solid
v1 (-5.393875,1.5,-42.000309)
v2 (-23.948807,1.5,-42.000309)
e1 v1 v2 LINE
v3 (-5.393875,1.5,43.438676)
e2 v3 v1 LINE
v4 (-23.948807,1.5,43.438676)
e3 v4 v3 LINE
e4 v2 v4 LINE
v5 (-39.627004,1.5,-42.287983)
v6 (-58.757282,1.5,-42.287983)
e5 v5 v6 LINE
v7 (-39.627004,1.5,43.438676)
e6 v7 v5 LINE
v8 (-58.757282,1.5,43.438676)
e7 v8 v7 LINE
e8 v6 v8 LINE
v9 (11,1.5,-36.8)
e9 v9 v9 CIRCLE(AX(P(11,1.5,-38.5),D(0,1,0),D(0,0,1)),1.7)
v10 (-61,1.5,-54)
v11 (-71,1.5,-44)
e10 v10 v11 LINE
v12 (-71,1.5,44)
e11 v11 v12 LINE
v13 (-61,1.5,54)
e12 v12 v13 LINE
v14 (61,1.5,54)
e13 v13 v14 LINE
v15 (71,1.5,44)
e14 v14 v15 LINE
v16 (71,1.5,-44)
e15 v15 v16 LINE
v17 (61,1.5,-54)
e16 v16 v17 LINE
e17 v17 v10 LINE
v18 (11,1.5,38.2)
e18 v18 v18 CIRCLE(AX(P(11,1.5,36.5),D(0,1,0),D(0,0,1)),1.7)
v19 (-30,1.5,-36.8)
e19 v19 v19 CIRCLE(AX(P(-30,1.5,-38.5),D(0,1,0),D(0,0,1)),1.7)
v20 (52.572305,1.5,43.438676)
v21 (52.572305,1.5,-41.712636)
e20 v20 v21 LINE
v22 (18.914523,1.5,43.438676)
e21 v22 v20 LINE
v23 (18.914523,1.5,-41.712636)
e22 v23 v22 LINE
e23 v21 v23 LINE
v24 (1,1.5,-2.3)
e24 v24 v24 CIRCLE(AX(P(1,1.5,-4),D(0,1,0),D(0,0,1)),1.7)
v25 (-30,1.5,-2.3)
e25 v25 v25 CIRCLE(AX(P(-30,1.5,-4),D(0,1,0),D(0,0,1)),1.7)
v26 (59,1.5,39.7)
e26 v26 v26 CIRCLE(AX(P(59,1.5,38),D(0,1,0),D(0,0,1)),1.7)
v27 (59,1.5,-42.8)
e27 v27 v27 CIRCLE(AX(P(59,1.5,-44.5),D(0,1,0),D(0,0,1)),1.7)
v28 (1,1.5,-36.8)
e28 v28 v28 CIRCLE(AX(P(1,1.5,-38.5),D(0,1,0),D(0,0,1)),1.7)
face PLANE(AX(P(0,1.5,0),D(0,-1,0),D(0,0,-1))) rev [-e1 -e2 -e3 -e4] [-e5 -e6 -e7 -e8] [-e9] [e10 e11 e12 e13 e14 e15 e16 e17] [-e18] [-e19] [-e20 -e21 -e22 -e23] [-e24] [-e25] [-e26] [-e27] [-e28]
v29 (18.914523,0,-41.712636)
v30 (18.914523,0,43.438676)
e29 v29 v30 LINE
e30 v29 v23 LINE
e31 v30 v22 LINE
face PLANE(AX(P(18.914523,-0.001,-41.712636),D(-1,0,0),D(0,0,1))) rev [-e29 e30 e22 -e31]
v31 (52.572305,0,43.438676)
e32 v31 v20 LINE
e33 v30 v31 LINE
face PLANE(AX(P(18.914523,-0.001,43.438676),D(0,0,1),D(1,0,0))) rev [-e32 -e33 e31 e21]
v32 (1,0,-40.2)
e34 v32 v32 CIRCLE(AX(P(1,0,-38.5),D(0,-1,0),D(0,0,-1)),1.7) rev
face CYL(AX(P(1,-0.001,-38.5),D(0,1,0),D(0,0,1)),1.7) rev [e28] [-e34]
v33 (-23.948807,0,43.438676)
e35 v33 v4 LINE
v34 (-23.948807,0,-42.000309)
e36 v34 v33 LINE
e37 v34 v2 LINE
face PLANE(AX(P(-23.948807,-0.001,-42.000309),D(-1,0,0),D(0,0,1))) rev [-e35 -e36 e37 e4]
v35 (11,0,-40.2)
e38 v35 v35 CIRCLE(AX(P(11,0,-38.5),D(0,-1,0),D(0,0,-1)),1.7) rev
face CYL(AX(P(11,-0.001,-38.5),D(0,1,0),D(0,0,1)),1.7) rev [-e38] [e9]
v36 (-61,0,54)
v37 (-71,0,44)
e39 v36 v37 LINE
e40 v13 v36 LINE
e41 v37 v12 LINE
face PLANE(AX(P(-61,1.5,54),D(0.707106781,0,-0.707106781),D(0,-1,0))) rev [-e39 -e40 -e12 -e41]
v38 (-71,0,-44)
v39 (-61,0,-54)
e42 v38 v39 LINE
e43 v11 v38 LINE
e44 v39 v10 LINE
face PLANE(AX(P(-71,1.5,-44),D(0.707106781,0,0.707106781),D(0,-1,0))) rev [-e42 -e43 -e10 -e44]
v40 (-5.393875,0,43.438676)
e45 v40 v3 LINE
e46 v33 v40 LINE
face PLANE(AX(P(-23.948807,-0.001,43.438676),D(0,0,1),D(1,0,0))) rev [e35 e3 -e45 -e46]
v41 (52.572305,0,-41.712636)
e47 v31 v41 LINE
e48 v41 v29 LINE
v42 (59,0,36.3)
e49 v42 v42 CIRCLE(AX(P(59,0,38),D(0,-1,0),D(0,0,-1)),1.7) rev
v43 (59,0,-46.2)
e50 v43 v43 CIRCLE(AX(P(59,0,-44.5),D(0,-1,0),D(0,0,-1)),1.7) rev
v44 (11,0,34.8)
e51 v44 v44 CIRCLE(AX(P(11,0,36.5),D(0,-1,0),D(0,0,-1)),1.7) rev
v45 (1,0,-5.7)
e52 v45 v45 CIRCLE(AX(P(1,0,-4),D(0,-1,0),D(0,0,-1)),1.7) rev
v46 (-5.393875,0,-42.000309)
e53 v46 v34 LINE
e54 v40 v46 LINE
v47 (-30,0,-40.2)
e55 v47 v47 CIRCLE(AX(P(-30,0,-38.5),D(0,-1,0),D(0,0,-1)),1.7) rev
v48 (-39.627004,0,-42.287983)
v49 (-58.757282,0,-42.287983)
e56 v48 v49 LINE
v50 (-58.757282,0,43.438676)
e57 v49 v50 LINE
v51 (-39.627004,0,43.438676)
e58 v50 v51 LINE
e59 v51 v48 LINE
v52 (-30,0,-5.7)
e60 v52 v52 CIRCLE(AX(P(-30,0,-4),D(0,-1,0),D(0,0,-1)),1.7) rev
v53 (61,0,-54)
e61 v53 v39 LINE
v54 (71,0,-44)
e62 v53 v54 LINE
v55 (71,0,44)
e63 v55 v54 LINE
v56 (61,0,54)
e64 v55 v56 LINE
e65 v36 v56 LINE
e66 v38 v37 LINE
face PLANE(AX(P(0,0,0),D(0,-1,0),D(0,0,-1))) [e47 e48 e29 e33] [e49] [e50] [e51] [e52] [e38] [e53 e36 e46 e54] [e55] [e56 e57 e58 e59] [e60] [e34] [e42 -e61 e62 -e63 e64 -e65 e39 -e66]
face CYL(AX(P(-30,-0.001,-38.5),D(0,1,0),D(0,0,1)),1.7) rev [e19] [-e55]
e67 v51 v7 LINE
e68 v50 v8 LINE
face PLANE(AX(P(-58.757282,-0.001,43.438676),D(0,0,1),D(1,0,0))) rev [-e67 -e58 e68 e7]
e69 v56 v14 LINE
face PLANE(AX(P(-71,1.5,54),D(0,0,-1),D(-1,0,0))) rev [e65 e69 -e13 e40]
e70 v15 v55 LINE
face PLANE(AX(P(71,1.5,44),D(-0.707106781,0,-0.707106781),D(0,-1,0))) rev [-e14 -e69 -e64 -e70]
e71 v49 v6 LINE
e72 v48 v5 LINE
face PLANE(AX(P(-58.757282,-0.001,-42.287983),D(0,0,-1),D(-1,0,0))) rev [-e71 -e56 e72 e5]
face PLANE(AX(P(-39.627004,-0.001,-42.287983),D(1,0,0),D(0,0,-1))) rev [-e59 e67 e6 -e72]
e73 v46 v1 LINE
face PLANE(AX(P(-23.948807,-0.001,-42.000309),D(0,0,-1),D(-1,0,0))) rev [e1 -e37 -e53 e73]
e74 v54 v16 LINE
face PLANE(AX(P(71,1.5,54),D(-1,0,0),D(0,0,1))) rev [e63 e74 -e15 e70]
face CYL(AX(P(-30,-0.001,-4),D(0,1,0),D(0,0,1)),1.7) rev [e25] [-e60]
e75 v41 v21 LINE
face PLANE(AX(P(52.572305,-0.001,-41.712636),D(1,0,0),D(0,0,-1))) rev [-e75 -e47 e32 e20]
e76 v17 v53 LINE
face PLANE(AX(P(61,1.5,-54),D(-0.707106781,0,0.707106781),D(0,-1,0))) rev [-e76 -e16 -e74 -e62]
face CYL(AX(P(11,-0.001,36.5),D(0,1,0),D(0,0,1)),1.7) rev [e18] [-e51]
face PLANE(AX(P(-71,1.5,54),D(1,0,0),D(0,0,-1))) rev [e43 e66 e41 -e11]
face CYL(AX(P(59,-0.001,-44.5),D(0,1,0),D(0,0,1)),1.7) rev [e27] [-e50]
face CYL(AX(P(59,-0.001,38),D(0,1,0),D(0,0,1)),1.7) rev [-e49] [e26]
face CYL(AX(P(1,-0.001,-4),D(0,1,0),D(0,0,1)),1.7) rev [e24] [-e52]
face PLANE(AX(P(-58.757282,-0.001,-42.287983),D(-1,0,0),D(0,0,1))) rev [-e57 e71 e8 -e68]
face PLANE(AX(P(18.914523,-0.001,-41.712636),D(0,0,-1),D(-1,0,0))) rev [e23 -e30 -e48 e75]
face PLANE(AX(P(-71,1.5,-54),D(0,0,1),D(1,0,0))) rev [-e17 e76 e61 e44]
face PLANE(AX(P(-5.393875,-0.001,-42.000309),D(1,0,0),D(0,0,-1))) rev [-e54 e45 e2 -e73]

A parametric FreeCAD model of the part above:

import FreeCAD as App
import Part
import Sketcher

V = App.Vector
Q = App.Units.Quantity


def edges_at(feature, points):
    """Names of the edges that pass closest to the given points."""
    edges = feature.Shape.Edges
    near = lambda p: min(range(len(edges)), key=lambda i: edges[i].distToShape(Part.Vertex(*p))[0])
    return sorted({f"Edge{near(p) + 1}" for p in points})


def add_polygon(sketch, points):
    """Adds a closed chain of lines whose ends are joined by coincident constraints."""
    first, n = sketch.GeometryCount, len(points)
    for a, b in zip(points, points[1:] + points[:1]):
        sketch.addGeometry(Part.LineSegment(App.Vector(*a, 0), App.Vector(*b, 0)), False)
    for i in range(n):
        sketch.addConstraint(Sketcher.Constraint("Coincident", first + i, 2, first + (i + 1) % n, 1))

doc = App.newDocument("Part")
body = doc.addObject("PartDesign::Body", "Body")

# Sketch on XZ plane
sketch1 = body.newObject("Sketcher::SketchObject", "Sketch")
sketch1.AttachmentSupport = (doc.getObject("XZ_Plane"), [""])
sketch1.MapMode = "FlatFace"
add_polygon(sketch1, [(-71, -54), (-71, 54), (71, 54), (71, -54)])  # lines 0-3
sketch1.addConstraint([
    Sketcher.Constraint("Vertical", 0),
    Sketcher.Constraint("Horizontal", 1),
    Sketcher.Constraint("Vertical", 2),
    Sketcher.Constraint("Horizontal", 3),
    Sketcher.Constraint("Symmetric", 0, 2, 2, 2, -1, 1),
    Sketcher.Constraint("DistanceX", 1, 1, 1, 2, Q("142 mm")),
    Sketcher.Constraint("DistanceY", 0, 1, 0, 2, Q("108 mm")),
])
pad1 = body.newObject("PartDesign::Pad", "Pad")
pad1.Profile = sketch1
pad1.Length = 1.5
pad1.Reversed = True
doc.recompute()

chamfer = body.newObject("PartDesign::Chamfer", "Chamfer")
chamfer.Base = (pad1, edges_at(pad1, [
    (71, 0.75, 54),
    (-71, 0.75, 54),
    (-71, 0.75, -54),
    (71, 0.75, -54),
]))
chamfer.Size = 10

# Sketch on XZ plane
sketch2 = body.newObject("Sketcher::SketchObject", "Sketch001")
sketch2.AttachmentSupport = (doc.getObject("XZ_Plane"), [""])
sketch2.MapMode = "FlatFace"
sketch2.AttachmentOffset = App.Placement(V(0, 0, -1.5), App.Rotation())
sketch2.addGeometry(Part.Circle(V(59, -44.5, 0), V(0, 0, 1), 1.7), False)
sketch2.addConstraint([
    Sketcher.Constraint("Diameter", 0, Q("3.4 mm")),
    Sketcher.Constraint("DistanceX", -1, 1, 0, 3, Q("59 mm")),
    Sketcher.Constraint("DistanceY", 0, 3, -1, 1, Q("44.5 mm")),
])
pocket1 = body.newObject("PartDesign::Pocket", "Pocket")
pocket1.Profile = sketch2
pocket1.Type = "UpToFirst"
pocket1.Reversed = True

# Sketch on XZ plane
sketch3 = body.newObject("Sketcher::SketchObject", "Sketch002")
sketch3.AttachmentSupport = (doc.getObject("XZ_Plane"), [""])
sketch3.MapMode = "FlatFace"
sketch3.AttachmentOffset = App.Placement(V(0, 0, -1.5), App.Rotation())
sketch3.addGeometry(Part.Circle(V(11, -38.5, 0), V(0, 0, 1), 1.7), False)
sketch3.addConstraint([
    Sketcher.Constraint("Diameter", 0, Q("3.4 mm")),
    Sketcher.Constraint("DistanceX", -1, 1, 0, 3, Q("11 mm")),
    Sketcher.Constraint("DistanceY", 0, 3, -1, 1, Q("38.5 mm")),
])
pocket2 = body.newObject("PartDesign::Pocket", "Pocket001")
pocket2.Profile = sketch3
pocket2.Type = "UpToFirst"
pocket2.Reversed = True

# Sketch on XZ plane
sketch4 = body.newObject("Sketcher::SketchObject", "Sketch003")
sketch4.AttachmentSupport = (doc.getObject("XZ_Plane"), [""])
sketch4.MapMode = "FlatFace"
sketch4.AttachmentOffset = App.Placement(V(0, 0, -1.5), App.Rotation())
sketch4.addGeometry(Part.Circle(V(11, 36.5, 0), V(0, 0, 1), 1.7), False)
sketch4.addConstraint([
    Sketcher.Constraint("Diameter", 0, Q("3.4 mm")),
    Sketcher.Constraint("DistanceX", -1, 1, 0, 3, Q("11 mm")),
    Sketcher.Constraint("DistanceY", -1, 1, 0, 3, Q("36.5 mm")),
])
pocket3 = body.newObject("PartDesign::Pocket", "Pocket002")
pocket3.Profile = sketch4
pocket3.Type = "UpToFirst"
pocket3.Reversed = True

# Sketch on XZ plane
sketch5 = body.newObject("Sketcher::SketchObject", "Sketch004")
sketch5.AttachmentSupport = (doc.getObject("XZ_Plane"), [""])
sketch5.MapMode = "FlatFace"
sketch5.AttachmentOffset = App.Placement(V(0, 0, -1.5), App.Rotation())
sketch5.addGeometry(Part.Circle(V(59, 38, 0), V(0, 0, 1), 1.7), False)
sketch5.addConstraint([
    Sketcher.Constraint("Diameter", 0, Q("3.4 mm")),
    Sketcher.Constraint("DistanceX", -1, 1, 0, 3, Q("59 mm")),
    Sketcher.Constraint("DistanceY", -1, 1, 0, 3, Q("38 mm")),
])
pocket4 = body.newObject("PartDesign::Pocket", "Pocket003")
pocket4.Profile = sketch5
pocket4.Type = "UpToFirst"
pocket4.Reversed = True

# Sketch on XZ plane
sketch6 = body.newObject("Sketcher::SketchObject", "Sketch005")
sketch6.AttachmentSupport = (doc.getObject("XZ_Plane"), [""])
sketch6.MapMode = "FlatFace"
sketch6.AttachmentOffset = App.Placement(V(0, 0, -1.5), App.Rotation())
sketch6.addGeometry(Part.Circle(V(-30, -38.5, 0), V(0, 0, 1), 1.7), False)
sketch6.addConstraint([
    Sketcher.Constraint("Diameter", 0, Q("3.4 mm")),
    Sketcher.Constraint("DistanceX", 0, 3, -1, 1, Q("30 mm")),
    Sketcher.Constraint("DistanceY", 0, 3, -1, 1, Q("38.5 mm")),
])
pocket5 = body.newObject("PartDesign::Pocket", "Pocket004")
pocket5.Profile = sketch6
pocket5.Type = "UpToFirst"
pocket5.Reversed = True

# Sketch on XZ plane
sketch7 = body.newObject("Sketcher::SketchObject", "Sketch006")
sketch7.AttachmentSupport = (doc.getObject("XZ_Plane"), [""])
sketch7.MapMode = "FlatFace"
sketch7.AttachmentOffset = App.Placement(V(0, 0, -1.5), App.Rotation())
sketch7.addGeometry(Part.Circle(V(1, -38.5, 0), V(0, 0, 1), 1.7), False)
sketch7.addConstraint([
    Sketcher.Constraint("Diameter", 0, Q("3.4 mm")),
    Sketcher.Constraint("DistanceX", -1, 1, 0, 3, Q("1 mm")),
    Sketcher.Constraint("DistanceY", 0, 3, -1, 1, Q("38.5 mm")),
])
pocket6 = body.newObject("PartDesign::Pocket", "Pocket005")
pocket6.Profile = sketch7
pocket6.Type = "UpToFirst"
pocket6.Reversed = True

# Sketch on XZ plane
sketch8 = body.newObject("Sketcher::SketchObject", "Sketch007")
sketch8.AttachmentSupport = (doc.getObject("XZ_Plane"), [""])
sketch8.MapMode = "FlatFace"
sketch8.AttachmentOffset = App.Placement(V(0, 0, -1.5), App.Rotation())
sketch8.addGeometry(Part.Circle(V(1, -4, 0), V(0, 0, 1), 1.7), False)
sketch8.addConstraint([
    Sketcher.Constraint("Diameter", 0, Q("3.4 mm")),
    Sketcher.Constraint("DistanceX", -1, 1, 0, 3, Q("1 mm")),
    Sketcher.Constraint("DistanceY", 0, 3, -1, 1, Q("4 mm")),
])
pocket7 = body.newObject("PartDesign::Pocket", "Pocket006")
pocket7.Profile = sketch8
pocket7.Type = "UpToFirst"
pocket7.Reversed = True

# Sketch on XZ plane
sketch9 = body.newObject("Sketcher::SketchObject", "Sketch008")
sketch9.AttachmentSupport = (doc.getObject("XZ_Plane"), [""])
sketch9.MapMode = "FlatFace"
sketch9.AttachmentOffset = App.Placement(V(0, 0, -1.5), App.Rotation())
sketch9.addGeometry(Part.Circle(V(-30, -4, 0), V(0, 0, 1), 1.7), False)
sketch9.addConstraint([
    Sketcher.Constraint("Diameter", 0, Q("3.4 mm")),
    Sketcher.Constraint("DistanceX", 0, 3, -1, 1, Q("30 mm")),
    Sketcher.Constraint("DistanceY", 0, 3, -1, 1, Q("4 mm")),
])
pocket8 = body.newObject("PartDesign::Pocket", "Pocket007")
pocket8.Profile = sketch9
pocket8.Type = "UpToFirst"
pocket8.Reversed = True

# Sketch on XZ plane
sketch10 = body.newObject("Sketcher::SketchObject", "Sketch009")
sketch10.AttachmentSupport = (doc.getObject("XZ_Plane"), [""])
sketch10.MapMode = "FlatFace"
sketch10.AttachmentOffset = App.Placement(V(0, 0, -1.5), App.Rotation())
add_polygon(sketch10, [(-59, -42), (-59, 43), (-40, 43), (-40, -42)])  # lines 0-3
sketch10.addConstraint([
    Sketcher.Constraint("Vertical", 0),
    Sketcher.Constraint("Horizontal", 1),
    Sketcher.Constraint("Vertical", 2),
    Sketcher.Constraint("Horizontal", 3),
    Sketcher.Constraint("DistanceY", 0, 1, 0, 2, Q("85.726659 mm")),
    Sketcher.Constraint("DistanceX", 1, 1, 1, 2, Q("19.130278 mm")),
    Sketcher.Constraint("DistanceX", 0, 2, -1, 1, Q("58.757282 mm")),
    Sketcher.Constraint("DistanceY", -1, 1, 0, 2, Q("43.438676 mm")),
])
pocket9 = body.newObject("PartDesign::Pocket", "Pocket008")
pocket9.Profile = sketch10
pocket9.Type = "UpToFirst"
pocket9.Reversed = True

# Sketch on XZ plane
sketch11 = body.newObject("Sketcher::SketchObject", "Sketch010")
sketch11.AttachmentSupport = (doc.getObject("XZ_Plane"), [""])
sketch11.MapMode = "FlatFace"
sketch11.AttachmentOffset = App.Placement(V(0, 0, -1.5), App.Rotation())
add_polygon(sketch11, [(19, -42), (19, 43), (53, 43), (53, -42)])  # lines 0-3
sketch11.addConstraint([
    Sketcher.Constraint("Vertical", 0),
    Sketcher.Constraint("Horizontal", 1),
    Sketcher.Constraint("Vertical", 2),
    Sketcher.Constraint("Horizontal", 3),
    Sketcher.Constraint("DistanceX", 1, 1, 1, 2, Q("33.657782 mm")),
    Sketcher.Constraint("DistanceY", 0, 1, 0, 2, Q("85.151312 mm")),
    Sketcher.Constraint("DistanceX", -1, 1, 0, 2, Q("18.914523 mm")),
    Sketcher.Constraint("DistanceY", -1, 1, 0, 2, Q("43.438676 mm")),
])
pocket10 = body.newObject("PartDesign::Pocket", "Pocket009")
pocket10.Profile = sketch11
pocket10.Type = "UpToFirst"
pocket10.Reversed = True

# Sketch on XZ plane
sketch12 = body.newObject("Sketcher::SketchObject", "Sketch011")
sketch12.AttachmentSupport = (doc.getObject("XZ_Plane"), [""])
sketch12.MapMode = "FlatFace"
sketch12.AttachmentOffset = App.Placement(V(0, 0, -1.5), App.Rotation())
add_polygon(sketch12, [(-24, -42), (-24, 43), (-5, 43), (-5, -42)])  # lines 0-3
sketch12.addConstraint([
    Sketcher.Constraint("Vertical", 0),
    Sketcher.Constraint("Horizontal", 1),
    Sketcher.Constraint("Vertical", 2),
    Sketcher.Constraint("Horizontal", 3),
    Sketcher.Constraint("DistanceX", 1, 1, 1, 2, Q("18.554931 mm")),
    Sketcher.Constraint("DistanceY", 0, 1, 0, 2, Q("85.438986 mm")),
    Sketcher.Constraint("DistanceY", 2, 2, -1, 1, Q("42.000309 mm")),
    Sketcher.Constraint("DistanceX", 0, 2, -1, 1, Q("23.948807 mm")),
])
pocket11 = body.newObject("PartDesign::Pocket", "Pocket010")
pocket11.Profile = sketch12
pocket11.Type = "UpToFirst"
pocket11.Reversed = True

doc.recompute()
